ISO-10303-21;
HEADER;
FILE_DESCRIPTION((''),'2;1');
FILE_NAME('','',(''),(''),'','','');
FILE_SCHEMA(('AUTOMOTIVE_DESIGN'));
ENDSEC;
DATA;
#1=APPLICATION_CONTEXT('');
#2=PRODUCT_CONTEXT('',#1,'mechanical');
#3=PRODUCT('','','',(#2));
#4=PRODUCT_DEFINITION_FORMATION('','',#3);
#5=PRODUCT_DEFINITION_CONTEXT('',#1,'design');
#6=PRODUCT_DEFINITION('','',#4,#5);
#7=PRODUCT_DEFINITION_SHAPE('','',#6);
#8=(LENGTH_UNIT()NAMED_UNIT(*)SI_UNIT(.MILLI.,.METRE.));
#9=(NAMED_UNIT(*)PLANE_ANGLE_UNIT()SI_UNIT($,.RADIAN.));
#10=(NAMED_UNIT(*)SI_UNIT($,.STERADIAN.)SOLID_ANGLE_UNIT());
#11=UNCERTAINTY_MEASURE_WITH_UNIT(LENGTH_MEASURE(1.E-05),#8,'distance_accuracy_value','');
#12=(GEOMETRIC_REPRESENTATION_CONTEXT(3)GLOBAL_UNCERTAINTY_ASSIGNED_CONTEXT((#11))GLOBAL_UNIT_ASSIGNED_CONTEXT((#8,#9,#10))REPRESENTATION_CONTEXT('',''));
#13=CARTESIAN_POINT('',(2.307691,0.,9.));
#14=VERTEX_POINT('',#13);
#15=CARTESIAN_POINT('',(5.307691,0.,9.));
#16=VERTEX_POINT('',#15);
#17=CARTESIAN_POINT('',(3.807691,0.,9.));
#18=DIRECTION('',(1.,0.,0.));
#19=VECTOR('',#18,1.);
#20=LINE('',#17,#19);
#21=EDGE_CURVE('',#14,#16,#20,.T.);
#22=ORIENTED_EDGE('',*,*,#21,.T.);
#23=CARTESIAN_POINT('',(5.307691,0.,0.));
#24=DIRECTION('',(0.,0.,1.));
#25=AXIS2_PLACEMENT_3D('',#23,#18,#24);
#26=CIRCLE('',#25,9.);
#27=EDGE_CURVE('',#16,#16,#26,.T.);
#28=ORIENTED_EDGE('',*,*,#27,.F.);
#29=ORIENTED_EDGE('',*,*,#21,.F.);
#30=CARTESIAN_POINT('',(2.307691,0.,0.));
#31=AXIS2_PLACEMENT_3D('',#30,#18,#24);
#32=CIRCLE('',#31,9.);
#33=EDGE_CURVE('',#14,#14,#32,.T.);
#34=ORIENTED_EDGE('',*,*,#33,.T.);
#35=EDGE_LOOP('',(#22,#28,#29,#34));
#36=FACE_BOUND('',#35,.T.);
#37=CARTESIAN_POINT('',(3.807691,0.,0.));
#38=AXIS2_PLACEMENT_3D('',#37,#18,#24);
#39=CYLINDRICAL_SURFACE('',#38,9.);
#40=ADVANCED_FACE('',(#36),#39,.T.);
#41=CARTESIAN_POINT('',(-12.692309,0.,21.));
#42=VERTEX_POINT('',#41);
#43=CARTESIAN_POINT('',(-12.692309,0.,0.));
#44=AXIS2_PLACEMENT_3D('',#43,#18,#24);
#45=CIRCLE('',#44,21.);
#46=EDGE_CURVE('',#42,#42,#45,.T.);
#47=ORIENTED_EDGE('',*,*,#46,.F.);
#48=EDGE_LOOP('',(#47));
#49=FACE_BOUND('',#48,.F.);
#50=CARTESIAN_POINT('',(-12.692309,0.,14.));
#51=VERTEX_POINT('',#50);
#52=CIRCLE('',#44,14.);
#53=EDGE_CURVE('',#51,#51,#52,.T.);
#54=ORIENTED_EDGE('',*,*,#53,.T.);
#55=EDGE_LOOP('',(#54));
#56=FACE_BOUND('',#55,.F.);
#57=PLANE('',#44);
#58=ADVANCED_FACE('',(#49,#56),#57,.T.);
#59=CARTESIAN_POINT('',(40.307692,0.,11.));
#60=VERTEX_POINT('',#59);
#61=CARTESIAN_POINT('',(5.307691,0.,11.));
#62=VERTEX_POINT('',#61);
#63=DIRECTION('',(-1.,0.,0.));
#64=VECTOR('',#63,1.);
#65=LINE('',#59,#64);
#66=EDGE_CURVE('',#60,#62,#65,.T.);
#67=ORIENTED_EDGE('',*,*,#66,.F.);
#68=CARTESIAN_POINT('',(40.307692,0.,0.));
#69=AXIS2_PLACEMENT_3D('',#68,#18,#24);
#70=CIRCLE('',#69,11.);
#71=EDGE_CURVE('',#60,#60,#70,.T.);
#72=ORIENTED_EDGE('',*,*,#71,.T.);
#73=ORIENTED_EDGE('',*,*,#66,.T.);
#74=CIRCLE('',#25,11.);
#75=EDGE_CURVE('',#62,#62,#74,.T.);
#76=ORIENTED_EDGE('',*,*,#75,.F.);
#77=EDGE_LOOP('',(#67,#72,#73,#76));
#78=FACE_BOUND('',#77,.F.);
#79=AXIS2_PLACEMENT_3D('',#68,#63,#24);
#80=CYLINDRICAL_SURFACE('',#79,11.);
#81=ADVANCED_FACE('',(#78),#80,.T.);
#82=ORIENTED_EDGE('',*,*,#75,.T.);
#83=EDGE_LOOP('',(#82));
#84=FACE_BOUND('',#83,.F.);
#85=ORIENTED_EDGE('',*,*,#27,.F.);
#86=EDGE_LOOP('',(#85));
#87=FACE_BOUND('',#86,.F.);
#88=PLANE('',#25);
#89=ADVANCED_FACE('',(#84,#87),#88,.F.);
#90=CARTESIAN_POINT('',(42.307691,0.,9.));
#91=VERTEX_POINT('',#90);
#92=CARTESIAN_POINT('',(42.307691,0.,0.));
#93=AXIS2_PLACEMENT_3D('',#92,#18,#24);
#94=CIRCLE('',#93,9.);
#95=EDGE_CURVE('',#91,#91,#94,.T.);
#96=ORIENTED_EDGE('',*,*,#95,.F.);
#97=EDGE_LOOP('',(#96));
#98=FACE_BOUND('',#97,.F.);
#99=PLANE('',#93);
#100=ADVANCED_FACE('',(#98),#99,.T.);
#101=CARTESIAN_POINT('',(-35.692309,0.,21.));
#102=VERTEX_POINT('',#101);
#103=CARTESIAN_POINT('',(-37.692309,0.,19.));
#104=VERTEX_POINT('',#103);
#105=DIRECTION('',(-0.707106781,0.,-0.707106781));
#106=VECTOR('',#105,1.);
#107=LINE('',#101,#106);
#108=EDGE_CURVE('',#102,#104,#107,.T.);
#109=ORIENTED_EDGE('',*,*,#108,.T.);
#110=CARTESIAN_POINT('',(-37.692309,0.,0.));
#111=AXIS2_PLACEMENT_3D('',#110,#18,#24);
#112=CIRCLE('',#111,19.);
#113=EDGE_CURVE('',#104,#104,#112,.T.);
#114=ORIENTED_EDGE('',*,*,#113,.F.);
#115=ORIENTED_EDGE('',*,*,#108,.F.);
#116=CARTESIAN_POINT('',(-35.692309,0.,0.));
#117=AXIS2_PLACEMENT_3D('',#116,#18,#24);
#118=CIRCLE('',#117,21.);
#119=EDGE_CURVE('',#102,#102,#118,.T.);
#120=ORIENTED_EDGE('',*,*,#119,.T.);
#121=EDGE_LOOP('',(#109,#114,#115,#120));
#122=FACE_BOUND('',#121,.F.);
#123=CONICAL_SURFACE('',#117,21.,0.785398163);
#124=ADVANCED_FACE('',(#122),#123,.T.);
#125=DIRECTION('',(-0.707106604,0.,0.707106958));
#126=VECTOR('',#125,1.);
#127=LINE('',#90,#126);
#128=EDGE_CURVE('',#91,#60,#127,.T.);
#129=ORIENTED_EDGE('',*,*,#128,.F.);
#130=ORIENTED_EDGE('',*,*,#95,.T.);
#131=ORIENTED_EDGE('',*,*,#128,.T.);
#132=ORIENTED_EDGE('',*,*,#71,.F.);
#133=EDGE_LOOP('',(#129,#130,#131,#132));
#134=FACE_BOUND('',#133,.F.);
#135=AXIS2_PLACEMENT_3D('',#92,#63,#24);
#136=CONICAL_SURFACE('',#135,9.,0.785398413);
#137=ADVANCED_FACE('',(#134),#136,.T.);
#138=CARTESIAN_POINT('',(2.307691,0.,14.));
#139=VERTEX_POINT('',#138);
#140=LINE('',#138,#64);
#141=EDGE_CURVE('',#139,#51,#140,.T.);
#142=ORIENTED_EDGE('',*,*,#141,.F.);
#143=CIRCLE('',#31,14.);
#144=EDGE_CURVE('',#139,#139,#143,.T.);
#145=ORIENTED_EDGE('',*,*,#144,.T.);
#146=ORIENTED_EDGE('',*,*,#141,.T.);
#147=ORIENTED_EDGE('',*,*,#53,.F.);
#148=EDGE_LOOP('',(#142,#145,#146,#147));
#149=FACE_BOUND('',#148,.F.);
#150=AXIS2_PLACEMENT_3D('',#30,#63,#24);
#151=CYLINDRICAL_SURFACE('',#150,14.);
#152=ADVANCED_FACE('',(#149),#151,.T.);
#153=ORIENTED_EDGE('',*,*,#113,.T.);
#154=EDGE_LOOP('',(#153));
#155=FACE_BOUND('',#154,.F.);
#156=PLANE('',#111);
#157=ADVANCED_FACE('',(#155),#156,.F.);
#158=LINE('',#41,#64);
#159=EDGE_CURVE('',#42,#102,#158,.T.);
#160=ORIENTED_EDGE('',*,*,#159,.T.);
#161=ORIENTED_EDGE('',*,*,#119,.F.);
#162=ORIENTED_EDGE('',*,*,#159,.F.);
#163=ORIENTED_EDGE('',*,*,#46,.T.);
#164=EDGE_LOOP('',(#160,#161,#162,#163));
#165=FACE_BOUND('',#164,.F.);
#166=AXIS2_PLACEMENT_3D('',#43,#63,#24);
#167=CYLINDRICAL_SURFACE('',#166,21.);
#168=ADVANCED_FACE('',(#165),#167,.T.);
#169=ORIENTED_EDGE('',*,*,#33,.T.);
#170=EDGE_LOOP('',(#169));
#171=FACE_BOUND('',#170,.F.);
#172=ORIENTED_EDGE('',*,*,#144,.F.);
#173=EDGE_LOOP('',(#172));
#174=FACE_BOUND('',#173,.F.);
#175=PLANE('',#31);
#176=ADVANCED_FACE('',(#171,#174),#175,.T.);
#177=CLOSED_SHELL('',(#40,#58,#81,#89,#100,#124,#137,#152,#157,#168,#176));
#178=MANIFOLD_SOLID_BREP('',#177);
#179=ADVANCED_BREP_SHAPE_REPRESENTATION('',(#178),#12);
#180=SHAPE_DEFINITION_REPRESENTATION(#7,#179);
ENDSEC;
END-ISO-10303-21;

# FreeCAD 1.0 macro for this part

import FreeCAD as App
import Part
import Sketcher
from FreeCAD import Vector


def add_polygon(sketch, points):
    """Adds a closed chain of lines whose ends are joined by coincident constraints."""
    first, n = sketch.GeometryCount, len(points)
    for a, b in zip(points, points[1:] + points[:1]):
        sketch.addGeometry(Part.LineSegment(App.Vector(*a, 0), App.Vector(*b, 0)), False)
    for i in range(n):
        sketch.addConstraint(Sketcher.Constraint("Coincident", first + i, 2, first + (i + 1) % n, 1))

doc = App.newDocument("Part")
body = doc.addObject("PartDesign::Body", "Body")

# Sketch on XZ plane
sketch1 = body.newObject("Sketcher::SketchObject", "Sketch")
sketch1.AttachmentSupport = (doc.getObject("XZ_Plane"), [""])
sketch1.MapMode = "FlatFace"
add_polygon(sketch1, [(-35.692309, 21), (-37.692309, 19), (-37.692309, 0), (42.307691, 0), (42.307691, 9), (40.307692, 11), (5.307691, 11), (5.307691, 9), (2.307691, 9), (2.307691, 14), (-12.692309, 14), (-12.692309, 21)])  # lines 0-11
sketch1.addConstraint([
    Sketcher.Constraint("Vertical", 1),
    Sketcher.Constraint("Horizontal", 2),
    Sketcher.Constraint("Vertical", 3),
    Sketcher.Constraint("Horizontal", 5),
    Sketcher.Constraint("Vertical", 6),
    Sketcher.Constraint("Horizontal", 7),
    Sketcher.Constraint("Vertical", 8),
    Sketcher.Constraint("Horizontal", 9),
    Sketcher.Constraint("Vertical", 10),
    Sketcher.Constraint("Horizontal", 11),
    Sketcher.Constraint("PointOnObject", 1, 2, -1),
    Sketcher.Constraint("Perpendicular", 0, 4),
    Sketcher.Constraint("Horizontal", 3, 2, 6, 2),
    Sketcher.Constraint("Equal", 0, 4),
    Sketcher.Constraint("DistanceX", 2, 1, 2, 2, 80.0),
    Sketcher.Constraint("DistanceX", 5, 2, 5, 1, 35.000001),
    Sketcher.Constraint("DistanceX", 7, 2, 7, 1, 3.0),
    Sketcher.Constraint("DistanceX", 9, 2, 9, 1, 15.0),
    Sketcher.Constraint("DistanceX", 11, 2, 11, 1, 23.0),
    Sketcher.Constraint("DistanceY", 1, 2, 1, 1, 19.0),
    Sketcher.Constraint("DistanceY", 3, 1, 3, 2, 9.0),
    Sketcher.Constraint("DistanceY", 6, 2, 6, 1, 2.0),
    Sketcher.Constraint("DistanceY", 8, 1, 8, 2, 5.0),
    Sketcher.Constraint("DistanceX", 0, 2, -1, 1, 37.692309),
])
revolution = body.newObject("PartDesign::Revolution", "Revolution")
revolution.Profile = sketch1
revolution.ReferenceAxis = (sketch1, ["H_Axis"])
revolution.Angle = 360

doc.recompute()
